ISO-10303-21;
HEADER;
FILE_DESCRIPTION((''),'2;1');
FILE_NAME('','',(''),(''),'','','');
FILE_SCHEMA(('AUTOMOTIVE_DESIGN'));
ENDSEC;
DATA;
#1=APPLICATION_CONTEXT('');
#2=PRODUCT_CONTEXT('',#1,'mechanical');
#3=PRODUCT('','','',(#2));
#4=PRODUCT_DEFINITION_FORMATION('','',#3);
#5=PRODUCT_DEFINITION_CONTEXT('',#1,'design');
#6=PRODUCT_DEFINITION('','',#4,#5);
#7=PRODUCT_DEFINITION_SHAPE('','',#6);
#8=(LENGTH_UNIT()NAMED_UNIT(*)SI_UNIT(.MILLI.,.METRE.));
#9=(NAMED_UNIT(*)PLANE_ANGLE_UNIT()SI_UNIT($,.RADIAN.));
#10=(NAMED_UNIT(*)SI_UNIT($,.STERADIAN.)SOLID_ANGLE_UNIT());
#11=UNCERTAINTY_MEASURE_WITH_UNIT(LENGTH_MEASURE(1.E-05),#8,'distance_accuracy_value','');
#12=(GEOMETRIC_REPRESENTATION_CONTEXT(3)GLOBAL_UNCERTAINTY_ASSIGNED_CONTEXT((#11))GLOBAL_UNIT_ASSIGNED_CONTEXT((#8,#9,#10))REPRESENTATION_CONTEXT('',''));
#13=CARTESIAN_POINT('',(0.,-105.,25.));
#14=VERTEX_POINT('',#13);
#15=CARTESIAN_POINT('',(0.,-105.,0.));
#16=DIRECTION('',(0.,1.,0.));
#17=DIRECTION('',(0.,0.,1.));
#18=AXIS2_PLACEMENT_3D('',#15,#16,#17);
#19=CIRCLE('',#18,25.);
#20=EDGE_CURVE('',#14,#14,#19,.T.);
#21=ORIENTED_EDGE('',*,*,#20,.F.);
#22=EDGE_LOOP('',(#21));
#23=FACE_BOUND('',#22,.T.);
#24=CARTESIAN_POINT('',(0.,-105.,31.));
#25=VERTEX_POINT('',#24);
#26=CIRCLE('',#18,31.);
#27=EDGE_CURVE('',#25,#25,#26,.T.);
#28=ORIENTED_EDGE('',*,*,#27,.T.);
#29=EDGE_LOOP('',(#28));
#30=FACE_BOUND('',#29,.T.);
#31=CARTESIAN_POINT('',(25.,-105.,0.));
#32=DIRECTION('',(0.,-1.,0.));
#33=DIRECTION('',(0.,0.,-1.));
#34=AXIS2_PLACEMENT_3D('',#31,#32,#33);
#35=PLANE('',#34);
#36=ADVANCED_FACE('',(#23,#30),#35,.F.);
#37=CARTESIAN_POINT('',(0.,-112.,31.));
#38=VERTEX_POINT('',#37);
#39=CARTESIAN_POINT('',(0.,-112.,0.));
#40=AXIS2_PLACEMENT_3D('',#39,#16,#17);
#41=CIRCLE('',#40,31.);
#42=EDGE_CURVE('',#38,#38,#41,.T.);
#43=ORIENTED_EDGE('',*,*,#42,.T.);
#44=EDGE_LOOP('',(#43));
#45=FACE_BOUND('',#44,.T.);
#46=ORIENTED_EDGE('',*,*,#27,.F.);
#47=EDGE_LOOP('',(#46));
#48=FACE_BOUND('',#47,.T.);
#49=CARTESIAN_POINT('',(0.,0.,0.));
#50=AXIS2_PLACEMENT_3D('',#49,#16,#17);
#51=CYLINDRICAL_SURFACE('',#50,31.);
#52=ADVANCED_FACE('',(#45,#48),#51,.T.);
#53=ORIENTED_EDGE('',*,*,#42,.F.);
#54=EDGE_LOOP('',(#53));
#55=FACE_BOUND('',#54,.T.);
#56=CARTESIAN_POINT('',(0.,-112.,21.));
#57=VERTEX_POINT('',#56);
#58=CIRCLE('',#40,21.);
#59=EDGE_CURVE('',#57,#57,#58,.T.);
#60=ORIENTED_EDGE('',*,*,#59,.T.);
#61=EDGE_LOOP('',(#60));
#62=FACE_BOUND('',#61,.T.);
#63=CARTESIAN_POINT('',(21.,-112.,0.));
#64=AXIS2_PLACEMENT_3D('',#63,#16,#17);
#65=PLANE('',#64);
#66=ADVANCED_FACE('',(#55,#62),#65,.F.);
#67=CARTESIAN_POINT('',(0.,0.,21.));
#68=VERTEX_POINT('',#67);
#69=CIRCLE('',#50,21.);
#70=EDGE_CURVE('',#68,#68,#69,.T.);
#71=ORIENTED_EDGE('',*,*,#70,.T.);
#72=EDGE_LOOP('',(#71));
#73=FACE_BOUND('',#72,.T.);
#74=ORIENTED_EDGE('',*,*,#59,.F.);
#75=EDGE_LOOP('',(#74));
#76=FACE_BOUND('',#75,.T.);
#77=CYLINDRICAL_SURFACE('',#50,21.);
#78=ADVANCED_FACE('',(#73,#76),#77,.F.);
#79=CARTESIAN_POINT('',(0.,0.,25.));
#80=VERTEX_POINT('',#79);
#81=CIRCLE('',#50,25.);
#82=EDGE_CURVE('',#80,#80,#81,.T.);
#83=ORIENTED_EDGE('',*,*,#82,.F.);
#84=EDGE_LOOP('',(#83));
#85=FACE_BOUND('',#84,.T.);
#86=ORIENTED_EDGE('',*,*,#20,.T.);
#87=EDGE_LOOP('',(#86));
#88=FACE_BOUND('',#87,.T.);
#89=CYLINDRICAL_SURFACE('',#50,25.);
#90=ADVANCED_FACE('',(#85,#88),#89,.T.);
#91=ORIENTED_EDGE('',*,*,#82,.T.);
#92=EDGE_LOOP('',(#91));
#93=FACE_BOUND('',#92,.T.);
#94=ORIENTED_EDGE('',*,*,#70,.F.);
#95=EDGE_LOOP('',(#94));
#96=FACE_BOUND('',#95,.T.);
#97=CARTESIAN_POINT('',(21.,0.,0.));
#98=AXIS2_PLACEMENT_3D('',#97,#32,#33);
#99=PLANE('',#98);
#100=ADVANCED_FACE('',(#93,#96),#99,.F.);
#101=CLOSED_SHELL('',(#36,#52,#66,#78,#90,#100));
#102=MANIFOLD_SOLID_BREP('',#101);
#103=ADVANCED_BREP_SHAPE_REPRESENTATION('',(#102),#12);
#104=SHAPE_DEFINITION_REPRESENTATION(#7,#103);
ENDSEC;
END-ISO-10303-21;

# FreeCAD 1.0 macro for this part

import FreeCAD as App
import Part
import Sketcher

V = App.Vector
Q = App.Units.Quantity

doc = App.newDocument("Part")
body = doc.addObject("PartDesign::Body", "Body")

sketch1 = body.newObject("Sketcher::SketchObject", "Sketch")
sketch1.AttachmentSupport = (doc.getObject("XY_Plane"), [""])
sketch1.MapMode = "FlatFace"
sketch1.addGeometry([
    Part.LineSegment(V(25, 0, 0), V(21, 0, 0)),
    Part.LineSegment(V(21, 0, 0), V(21, -112, 0)),
    Part.LineSegment(V(21, -112, 0), V(31, -112, 0)),
    Part.LineSegment(V(31, -112, 0), V(31, -105, 0)),
    Part.LineSegment(V(31, -105, 0), V(25, -105, 0)),
    Part.LineSegment(V(25, -105, 0), V(25, 0, 0)),
], False)
sketch1.addConstraint([
    Sketcher.Constraint("Coincident", 0, 2, 1, 1),
    Sketcher.Constraint("Coincident", 1, 2, 2, 1),
    Sketcher.Constraint("Coincident", 2, 2, 3, 1),
    Sketcher.Constraint("Coincident", 3, 2, 4, 1),
    Sketcher.Constraint("Coincident", 4, 2, 5, 1),
    Sketcher.Constraint("Coincident", 5, 2, 0, 1),
    Sketcher.Constraint("Horizontal", 0),
    Sketcher.Constraint("Vertical", 1),
    Sketcher.Constraint("Horizontal", 2),
    Sketcher.Constraint("Vertical", 3),
    Sketcher.Constraint("Horizontal", 4),
    Sketcher.Constraint("Vertical", 5),
    Sketcher.Constraint("PointOnObject", 0, 2, -1),
    Sketcher.Constraint("DistanceX", 0, 2, 0, 1, Q("4 mm")),
    Sketcher.Constraint("DistanceX", 2, 1, 2, 2, Q("10 mm")),
    Sketcher.Constraint("DistanceY", 1, 2, 1, 1, Q("112 mm")),
    Sketcher.Constraint("DistanceY", 3, 1, 3, 2, Q("7 mm")),
    Sketcher.Constraint("DistanceX", -1, 1, 0, 2, Q("21 mm")),
])
revolution = body.newObject("PartDesign::Revolution", "Revolution")
revolution.Profile = sketch1
revolution.ReferenceAxis = (sketch1, ["V_Axis"])
revolution.Angle = 360

doc.recompute()
